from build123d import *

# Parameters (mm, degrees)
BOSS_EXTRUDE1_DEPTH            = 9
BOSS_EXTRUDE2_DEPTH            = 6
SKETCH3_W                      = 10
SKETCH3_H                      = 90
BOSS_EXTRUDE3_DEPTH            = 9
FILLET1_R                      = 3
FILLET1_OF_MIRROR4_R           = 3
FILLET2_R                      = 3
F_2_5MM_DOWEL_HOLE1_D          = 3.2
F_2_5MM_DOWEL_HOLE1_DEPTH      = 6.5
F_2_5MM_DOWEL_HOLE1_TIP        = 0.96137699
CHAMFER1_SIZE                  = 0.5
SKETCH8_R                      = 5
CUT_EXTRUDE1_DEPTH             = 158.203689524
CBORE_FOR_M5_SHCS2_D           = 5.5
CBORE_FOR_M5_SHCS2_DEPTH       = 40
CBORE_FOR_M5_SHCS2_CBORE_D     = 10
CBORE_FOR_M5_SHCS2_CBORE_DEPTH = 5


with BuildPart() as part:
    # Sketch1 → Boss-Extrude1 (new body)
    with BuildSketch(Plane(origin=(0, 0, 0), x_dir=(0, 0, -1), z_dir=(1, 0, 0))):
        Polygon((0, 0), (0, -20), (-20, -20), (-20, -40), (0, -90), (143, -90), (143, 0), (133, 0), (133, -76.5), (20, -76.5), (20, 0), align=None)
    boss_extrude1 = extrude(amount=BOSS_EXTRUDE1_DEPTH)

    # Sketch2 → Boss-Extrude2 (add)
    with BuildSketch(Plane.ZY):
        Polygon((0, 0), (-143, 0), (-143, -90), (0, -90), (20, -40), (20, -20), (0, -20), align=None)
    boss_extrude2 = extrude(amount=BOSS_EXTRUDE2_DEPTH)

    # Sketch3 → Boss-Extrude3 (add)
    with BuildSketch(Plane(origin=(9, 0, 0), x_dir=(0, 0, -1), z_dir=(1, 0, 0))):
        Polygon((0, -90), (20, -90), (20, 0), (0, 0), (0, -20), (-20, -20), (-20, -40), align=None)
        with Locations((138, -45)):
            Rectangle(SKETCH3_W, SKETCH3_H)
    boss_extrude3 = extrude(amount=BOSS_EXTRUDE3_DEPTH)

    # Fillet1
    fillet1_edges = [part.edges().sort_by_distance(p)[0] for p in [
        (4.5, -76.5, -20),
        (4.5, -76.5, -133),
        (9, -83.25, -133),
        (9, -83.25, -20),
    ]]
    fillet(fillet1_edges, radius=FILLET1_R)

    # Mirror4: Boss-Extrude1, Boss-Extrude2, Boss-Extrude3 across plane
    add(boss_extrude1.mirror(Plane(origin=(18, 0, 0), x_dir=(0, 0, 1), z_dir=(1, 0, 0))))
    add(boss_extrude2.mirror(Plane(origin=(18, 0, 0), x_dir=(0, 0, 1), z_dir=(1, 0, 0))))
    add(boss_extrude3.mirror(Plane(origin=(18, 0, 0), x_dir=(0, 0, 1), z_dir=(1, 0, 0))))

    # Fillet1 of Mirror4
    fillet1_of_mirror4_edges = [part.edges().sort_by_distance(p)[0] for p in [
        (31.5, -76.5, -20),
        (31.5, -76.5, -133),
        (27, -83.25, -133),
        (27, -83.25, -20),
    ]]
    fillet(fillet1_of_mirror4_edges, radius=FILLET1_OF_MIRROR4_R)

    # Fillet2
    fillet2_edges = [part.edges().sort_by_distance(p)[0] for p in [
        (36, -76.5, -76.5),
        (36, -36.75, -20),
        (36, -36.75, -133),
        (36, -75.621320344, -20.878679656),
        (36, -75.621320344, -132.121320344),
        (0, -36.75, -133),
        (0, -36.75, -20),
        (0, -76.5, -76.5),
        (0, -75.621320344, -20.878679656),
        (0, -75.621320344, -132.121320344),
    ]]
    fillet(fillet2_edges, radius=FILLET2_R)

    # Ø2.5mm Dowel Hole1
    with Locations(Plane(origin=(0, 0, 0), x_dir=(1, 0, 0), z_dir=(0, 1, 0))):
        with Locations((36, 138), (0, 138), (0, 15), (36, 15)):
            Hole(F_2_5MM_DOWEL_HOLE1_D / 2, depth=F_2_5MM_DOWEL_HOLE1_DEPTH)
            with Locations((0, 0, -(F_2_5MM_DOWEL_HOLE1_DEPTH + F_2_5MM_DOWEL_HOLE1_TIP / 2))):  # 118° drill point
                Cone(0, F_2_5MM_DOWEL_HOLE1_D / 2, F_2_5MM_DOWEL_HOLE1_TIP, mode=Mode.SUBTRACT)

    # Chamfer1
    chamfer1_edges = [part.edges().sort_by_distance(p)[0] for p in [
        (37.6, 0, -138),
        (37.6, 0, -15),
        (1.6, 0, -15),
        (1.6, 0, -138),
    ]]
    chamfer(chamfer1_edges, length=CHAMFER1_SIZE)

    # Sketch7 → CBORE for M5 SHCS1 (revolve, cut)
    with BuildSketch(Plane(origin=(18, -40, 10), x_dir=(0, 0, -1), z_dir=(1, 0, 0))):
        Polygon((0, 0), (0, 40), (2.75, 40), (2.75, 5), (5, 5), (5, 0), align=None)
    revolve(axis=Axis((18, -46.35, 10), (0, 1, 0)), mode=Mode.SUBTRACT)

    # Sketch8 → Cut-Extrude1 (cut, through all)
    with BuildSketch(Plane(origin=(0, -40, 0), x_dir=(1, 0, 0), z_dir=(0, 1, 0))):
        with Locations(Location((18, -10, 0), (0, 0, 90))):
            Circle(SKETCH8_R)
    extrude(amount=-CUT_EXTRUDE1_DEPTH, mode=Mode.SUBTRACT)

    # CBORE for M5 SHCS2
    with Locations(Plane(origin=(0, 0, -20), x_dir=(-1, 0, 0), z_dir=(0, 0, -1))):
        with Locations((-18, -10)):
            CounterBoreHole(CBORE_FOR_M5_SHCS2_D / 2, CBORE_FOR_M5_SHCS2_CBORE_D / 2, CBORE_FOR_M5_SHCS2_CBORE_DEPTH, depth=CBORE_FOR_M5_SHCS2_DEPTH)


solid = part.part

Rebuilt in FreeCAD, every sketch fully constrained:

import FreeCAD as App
import Part
import Sketcher
from FreeCAD import Vector


def edges_at(feature, points):
    """Names of the edges that pass closest to the given points."""
    edges = feature.Shape.Edges
    near = lambda p: min(range(len(edges)), key=lambda i: edges[i].distToShape(Part.Vertex(*p))[0])
    return sorted({f"Edge{near(p) + 1}" for p in points})

doc = App.newDocument("Part")
body = doc.addObject("PartDesign::Body", "Body")

sketch1 = body.newObject("Sketcher::SketchObject", "Sketch")
sketch1.AttachmentSupport = (doc.getObject("YZ_Plane"), [""])
sketch1.MapMode = "FlatFace"
sketch1.addGeometry([
    Part.LineSegment(Vector(0, 0, 0), Vector(-20, 0, 0)),
    Part.LineSegment(Vector(-20, 0, 0), Vector(-20, 20, 0)),
    Part.LineSegment(Vector(-20, 20, 0), Vector(-40, 20, 0)),
    Part.LineSegment(Vector(-40, 20, 0), Vector(-90, 0, 0)),
    Part.LineSegment(Vector(-90, 0, 0), Vector(-90, -143, 0)),
    Part.LineSegment(Vector(-90, -143, 0), Vector(0, -143, 0)),
    Part.LineSegment(Vector(0, -143, 0), Vector(0, -133, 0)),
    Part.LineSegment(Vector(0, -133, 0), Vector(-76, -133, 0)),
    Part.LineSegment(Vector(-76, -133, 0), Vector(-76, -20, 0)),
    Part.LineSegment(Vector(-76, -20, 0), Vector(0, -20, 0)),
    Part.LineSegment(Vector(0, -20, 0), Vector(0, 0, 0)),
], False)
sketch1.addConstraint([
    Sketcher.Constraint("Coincident", 0, 2, 1, 1),
    Sketcher.Constraint("Coincident", 1, 2, 2, 1),
    Sketcher.Constraint("Coincident", 2, 2, 3, 1),
    Sketcher.Constraint("Coincident", 3, 2, 4, 1),
    Sketcher.Constraint("Coincident", 4, 2, 5, 1),
    Sketcher.Constraint("Coincident", 5, 2, 6, 1),
    Sketcher.Constraint("Coincident", 6, 2, 7, 1),
    Sketcher.Constraint("Coincident", 7, 2, 8, 1),
    Sketcher.Constraint("Coincident", 8, 2, 9, 1),
    Sketcher.Constraint("Coincident", 9, 2, 10, 1),
    Sketcher.Constraint("Coincident", 10, 2, 0, 1),
    Sketcher.Constraint("Horizontal", 0),
    Sketcher.Constraint("Vertical", 1),
    Sketcher.Constraint("Horizontal", 2),
    Sketcher.Constraint("Vertical", 4),
    Sketcher.Constraint("Horizontal", 5),
    Sketcher.Constraint("Vertical", 6),
    Sketcher.Constraint("Horizontal", 7),
    Sketcher.Constraint("Vertical", 8),
    Sketcher.Constraint("Horizontal", 9),
    Sketcher.Constraint("Vertical", 10),
    Sketcher.Constraint("Coincident", 10, 2, -1, 1),
    Sketcher.Constraint("PointOnObject", 3, 2, -1),
    Sketcher.Constraint("PointOnObject", 5, 2, -2),
    Sketcher.Constraint("Equal", 0, 2),
    Sketcher.Constraint("Equal", 2, 1),
    Sketcher.Constraint("Equal", 1, 10),
    Sketcher.Constraint("DistanceX", 0, 2, 0, 1, 20.0),
    Sketcher.Constraint("DistanceX", 5, 1, 5, 2, 90.0),
    Sketcher.Constraint("DistanceY", 4, 2, 4, 1, 143.0),
    Sketcher.Constraint("DistanceY", 6, 1, 6, 2, 10.0),
    Sketcher.Constraint("DistanceX", 7, 2, 7, 1, 76.5),
])
pad1 = body.newObject("PartDesign::Pad", "Pad")
pad1.Profile = sketch1
pad1.Length = 9

sketch2 = body.newObject("Sketcher::SketchObject", "Sketch001")
sketch2.AttachmentSupport = (doc.getObject("YZ_Plane"), [""])
sketch2.MapMode = "FlatFace"
sketch2.addGeometry([
    Part.LineSegment(Vector(0, 0, 0), Vector(0, -143, 0)),
    Part.LineSegment(Vector(0, -143, 0), Vector(-90, -143, 0)),
    Part.LineSegment(Vector(-90, -143, 0), Vector(-90, 0, 0)),
    Part.LineSegment(Vector(-90, 0, 0), Vector(-40, 20, 0)),
    Part.LineSegment(Vector(-40, 20, 0), Vector(-20, 20, 0)),
    Part.LineSegment(Vector(-20, 20, 0), Vector(-20, 0, 0)),
    Part.LineSegment(Vector(-20, 0, 0), Vector(0, 0, 0)),
], False)
sketch2.addConstraint([
    Sketcher.Constraint("Coincident", 0, 2, 1, 1),
    Sketcher.Constraint("Coincident", 1, 2, 2, 1),
    Sketcher.Constraint("Coincident", 2, 2, 3, 1),
    Sketcher.Constraint("Coincident", 3, 2, 4, 1),
    Sketcher.Constraint("Coincident", 4, 2, 5, 1),
    Sketcher.Constraint("Coincident", 5, 2, 6, 1),
    Sketcher.Constraint("Coincident", 6, 2, 0, 1),
    Sketcher.Constraint("Vertical", 0),
    Sketcher.Constraint("Horizontal", 1),
    Sketcher.Constraint("Vertical", 2),
    Sketcher.Constraint("Horizontal", 4),
    Sketcher.Constraint("Vertical", 5),
    Sketcher.Constraint("Horizontal", 6),
    Sketcher.Constraint("Coincident", 6, 2, -1, 1),
    Sketcher.Constraint("PointOnObject", 2, 2, -1),
    Sketcher.Constraint("Equal", 4, 6),
    Sketcher.Constraint("Equal", 6, 5),
    Sketcher.Constraint("DistanceX", 1, 2, 1, 1, 90.0),
    Sketcher.Constraint("DistanceX", 4, 1, 4, 2, 20.0),
    Sketcher.Constraint("DistanceY", 0, 2, 0, 1, 143.0),
])
pad2 = body.newObject("PartDesign::Pad", "Pad001")
pad2.Profile = sketch2
pad2.Length = 6
pad2.Reversed = True

sketch3 = body.newObject("Sketcher::SketchObject", "Sketch002")
sketch3.AttachmentSupport = (doc.getObject("YZ_Plane"), [""])
sketch3.MapMode = "FlatFace"
sketch3.AttachmentOffset = App.Placement(Vector(0, 0, 9), App.Rotation())
sketch3.addGeometry([
    Part.LineSegment(Vector(-90, 0, 0), Vector(-90, -20, 0)),
    Part.LineSegment(Vector(-90, -20, 0), Vector(0, -20, 0)),
    Part.LineSegment(Vector(0, -20, 0), Vector(0, 0, 0)),
    Part.LineSegment(Vector(0, 0, 0), Vector(-20, 0, 0)),
    Part.LineSegment(Vector(-20, 0, 0), Vector(-20, 20, 0)),
    Part.LineSegment(Vector(-20, 20, 0), Vector(-40, 20, 0)),
    Part.LineSegment(Vector(-40, 20, 0), Vector(-90, 0, 0)),
    Part.LineSegment(Vector(0, -133, 0), Vector(-90, -133, 0)),
    Part.LineSegment(Vector(-90, -133, 0), Vector(-90, -143, 0)),
    Part.LineSegment(Vector(-90, -143, 0), Vector(0, -143, 0)),
    Part.LineSegment(Vector(0, -143, 0), Vector(0, -133, 0)),
], False)
sketch3.addConstraint([
    Sketcher.Constraint("Coincident", 0, 2, 1, 1),
    Sketcher.Constraint("Coincident", 1, 2, 2, 1),
    Sketcher.Constraint("Coincident", 2, 2, 3, 1),
    Sketcher.Constraint("Coincident", 3, 2, 4, 1),
    Sketcher.Constraint("Coincident", 4, 2, 5, 1),
    Sketcher.Constraint("Coincident", 5, 2, 6, 1),
    Sketcher.Constraint("Coincident", 6, 2, 0, 1),
    Sketcher.Constraint("Coincident", 7, 2, 8, 1),
    Sketcher.Constraint("Coincident", 8, 2, 9, 1),
    Sketcher.Constraint("Coincident", 9, 2, 10, 1),
    Sketcher.Constraint("Coincident", 10, 2, 7, 1),
    Sketcher.Constraint("Vertical", 0),
    Sketcher.Constraint("Horizontal", 1),
    Sketcher.Constraint("Vertical", 2),
    Sketcher.Constraint("Horizontal", 3),
    Sketcher.Constraint("Vertical", 4),
    Sketcher.Constraint("Horizontal", 5),
    Sketcher.Constraint("Horizontal", 7),
    Sketcher.Constraint("Vertical", 8),
    Sketcher.Constraint("Horizontal", 9),
    Sketcher.Constraint("Vertical", 10),
    Sketcher.Constraint("Coincident", 2, 2, -1, 1),
    Sketcher.Constraint("PointOnObject", 6, 2, -1),
    Sketcher.Constraint("PointOnObject", 9, 2, -2),
    Sketcher.Constraint("Vertical", 6, 2, 7, 2),
    Sketcher.Constraint("Equal", 3, 5),
    Sketcher.Constraint("Equal", 5, 0),
    Sketcher.Constraint("Equal", 2, 4),
    Sketcher.Constraint("DistanceX", 1, 1, 1, 2, 90.0),
    Sketcher.Constraint("DistanceX", 3, 2, 3, 1, 20.0),
    Sketcher.Constraint("DistanceY", 8, 2, 8, 1, 10.0),
    Sketcher.Constraint("DistanceY", 7, 2, -1, 1, 133.0),
])
pad3 = body.newObject("PartDesign::Pad", "Pad002")
pad3.Profile = sketch3
pad3.Length = 9
doc.recompute()

fillet = body.newObject("PartDesign::Fillet", "Fillet")
fillet.Base = (pad3, edges_at(pad3, [
    (4.5, -76.5, -20),
    (4.5, -76.5, -133),
    (9, -83.25, -133),
    (9, -83.25, -20),
]))
fillet.Radius = 3
doc.recompute()

datumplane = body.newObject("PartDesign::Plane", "DatumPlane")
datumplane.AttachmentSupport = (doc.getObject("YZ_Plane"), [""])
datumplane.MapMode = "FlatFace"
datumplane.AttachmentOffset = App.Placement(Vector(0, 0, 18), App.Rotation())
mirrored = body.newObject("PartDesign::Mirrored", "Mirrored")
mirrored.Originals = [pad1, pad2, pad3]
mirrored.MirrorPlane = (datumplane, [""])
body.Tip = mirrored
doc.recompute()

fillet2 = body.newObject("PartDesign::Fillet", "Fillet001")
fillet2.Base = (mirrored, edges_at(mirrored, [
    (31.5, -76.5, -20),
    (31.5, -76.5, -133),
    (27, -83.25, -133),
    (27, -83.25, -20),
]))
fillet2.Radius = 3
doc.recompute()

fillet3 = body.newObject("PartDesign::Fillet", "Fillet002")
fillet3.Base = (fillet2, edges_at(fillet2, [
    (36, -76.5, -76.5),
    (36, -36.75, -20),
    (36, -36.75, -133),
    (36, -75.621, -20.879),
    (36, -75.621, -132.121),
    (0, -36.75, -133),
    (0, -36.75, -20),
    (0, -76.5, -76.5),
    (0, -75.621, -20.879),
    (0, -75.621, -132.121),
]))
fillet3.Radius = 3

sketch4 = body.newObject("Sketcher::SketchObject", "Sketch003")
sketch4.AttachmentSupport = (doc.getObject("XZ_Plane"), [""])
sketch4.MapMode = "FlatFace"
sketch4.addGeometry([
    Part.Circle(Vector(36, -138, 0), Vector(0, 0, 1), 1.6),
    Part.Circle(Vector(0, -138, 0), Vector(0, 0, 1), 1.6),
    Part.Circle(Vector(0, -15, 0), Vector(0, 0, 1), 1.6),
    Part.Circle(Vector(36, -15, 0), Vector(0, 0, 1), 1.6),
], False)
sketch4.addConstraint([
    Sketcher.Constraint("Equal", 0, 1),
    Sketcher.Constraint("Equal", 1, 2),
    Sketcher.Constraint("Equal", 2, 3),
    Sketcher.Constraint("PointOnObject", 1, 3, -2),
    Sketcher.Constraint("PointOnObject", 2, 3, -2),
    Sketcher.Constraint("Horizontal", 0, 3, 1, 3),
    Sketcher.Constraint("Horizontal", 2, 3, 3, 3),
    Sketcher.Constraint("Vertical", 0, 3, 3, 3),
    Sketcher.Constraint("Diameter", 0, 3.2),
    Sketcher.Constraint("DistanceX", -1, 1, 0, 3, 36.0),
    Sketcher.Constraint("DistanceY", 0, 3, -1, 1, 138.0),
    Sketcher.Constraint("DistanceY", 2, 3, -1, 1, 15.0),
])
doc.recompute()
hole = body.newObject("PartDesign::Hole", "Hole")
hole.Profile = sketch4
hole.ThreadType = "None"
hole.Diameter = 3.2
hole.DepthType = "Dimension"
hole.Depth = 6.5
hole.DrillPoint = "Angled"
hole.DrillPointAngle = 118
hole.Reversed = True
doc.recompute()

chamfer = body.newObject("PartDesign::Chamfer", "Chamfer")
chamfer.Base = (hole, edges_at(hole, [
    (37.6, 0, -138),
    (37.6, 0, -15),
    (1.6, 0, -15),
    (1.6, 0, -138),
]))
chamfer.Size = 0.5

sketch5 = body.newObject("Sketcher::SketchObject", "Sketch004")
sketch5.AttachmentSupport = (doc.getObject("YZ_Plane"), [""])
sketch5.MapMode = "FlatFace"
sketch5.AttachmentOffset = App.Placement(Vector(0, 0, 18), App.Rotation())
sketch5.addGeometry([
    Part.LineSegment(Vector(0, 10, 0), Vector(-40, 10, 0)),
    Part.LineSegment(Vector(-40, 10, 0), Vector(-40, 5, 0)),
    Part.LineSegment(Vector(-40, 5, 0), Vector(-35, 5, 0)),
    Part.LineSegment(Vector(-35, 5, 0), Vector(-35, 7.2, 0)),
    Part.LineSegment(Vector(-35, 7.2, 0), Vector(0, 7.2, 0)),
    Part.LineSegment(Vector(0, 7.2, 0), Vector(0, 10, 0)),
], False)
sketch5.addGeometry(Part.LineSegment(Vector(-40, 10, 0), Vector(0, 10, 0)), True)
sketch5.addConstraint([
    Sketcher.Constraint("Coincident", 0, 2, 1, 1),
    Sketcher.Constraint("Coincident", 1, 2, 2, 1),
    Sketcher.Constraint("Coincident", 2, 2, 3, 1),
    Sketcher.Constraint("Coincident", 3, 2, 4, 1),
    Sketcher.Constraint("Coincident", 4, 2, 5, 1),
    Sketcher.Constraint("Coincident", 5, 2, 0, 1),
    Sketcher.Constraint("Horizontal", 0),
    Sketcher.Constraint("Vertical", 1),
    Sketcher.Constraint("Horizontal", 2),
    Sketcher.Constraint("Vertical", 3),
    Sketcher.Constraint("Horizontal", 4),
    Sketcher.Constraint("Vertical", 5),
    Sketcher.Constraint("Horizontal", 6),
    Sketcher.Constraint("Coincident", 6, 1, 0, 2),
    Sketcher.Constraint("PointOnObject", 4, 2, -2),
    Sketcher.Constraint("PointOnObject", 6, 2, -2),
    Sketcher.Constraint("Equal", 2, 1),
    Sketcher.Constraint("DistanceX", 0, 2, 0, 1, 40.0),
    Sketcher.Constraint("DistanceX", 2, 1, 2, 2, 5.0),
    Sketcher.Constraint("DistanceY", -1, 1, 0, 2, 10.0),
    Sketcher.Constraint("DistanceY", 3, 1, 3, 2, 2.25),
])
groove = body.newObject("PartDesign::Groove", "Groove")
groove.Profile = sketch5
groove.ReferenceAxis = (sketch5, ["Axis0"])
groove.Angle = 360

sketch6 = body.newObject("Sketcher::SketchObject", "Sketch005")
sketch6.AttachmentSupport = (doc.getObject("XZ_Plane"), [""])
sketch6.MapMode = "FlatFace"
sketch6.AttachmentOffset = App.Placement(Vector(0, 0, 40), App.Rotation())
sketch6.addGeometry(Part.Circle(Vector(18, 10, 0), Vector(0, 0, 1), 5), False)
sketch6.addConstraint([
    Sketcher.Constraint("Diameter", 0, 10.0),
    Sketcher.Constraint("DistanceX", -1, 1, 0, 3, 18.0),
    Sketcher.Constraint("DistanceY", -1, 1, 0, 3, 10.0),
])
pocket1 = body.newObject("PartDesign::Pocket", "Pocket")
pocket1.Profile = sketch6
pocket1.Type = "ThroughAll"
pocket1.Reversed = True

sketch7 = body.newObject("Sketcher::SketchObject", "Sketch006")
sketch7.AttachmentSupport = (doc.getObject("XY_Plane"), [""])
sketch7.MapMode = "FlatFace"
sketch7.AttachmentOffset = App.Placement(Vector(0, 0, -20), App.Rotation())
sketch7.addGeometry(Part.Circle(Vector(18, -10, 0), Vector(0, 0, 1), 2.8), False)
sketch7.addConstraint([
    Sketcher.Constraint("Diameter", 0, 5.5),
    Sketcher.Constraint("DistanceX", -1, 1, 0, 3, 18.0),
    Sketcher.Constraint("DistanceY", 0, 3, -1, 1, 10.0),
])
doc.recompute()
hole2 = body.newObject("PartDesign::Hole", "Hole001")
hole2.Profile = sketch7
hole2.ThreadType = "None"
hole2.Diameter = 5.5
hole2.DepthType = "Dimension"
hole2.Depth = 40
hole2.DrillPoint = "Flat"
hole2.HoleCutType = "Counterbore"
hole2.HoleCutDiameter = 10
hole2.HoleCutDepth = 5
hole2.Reversed = True

doc.recompute()
